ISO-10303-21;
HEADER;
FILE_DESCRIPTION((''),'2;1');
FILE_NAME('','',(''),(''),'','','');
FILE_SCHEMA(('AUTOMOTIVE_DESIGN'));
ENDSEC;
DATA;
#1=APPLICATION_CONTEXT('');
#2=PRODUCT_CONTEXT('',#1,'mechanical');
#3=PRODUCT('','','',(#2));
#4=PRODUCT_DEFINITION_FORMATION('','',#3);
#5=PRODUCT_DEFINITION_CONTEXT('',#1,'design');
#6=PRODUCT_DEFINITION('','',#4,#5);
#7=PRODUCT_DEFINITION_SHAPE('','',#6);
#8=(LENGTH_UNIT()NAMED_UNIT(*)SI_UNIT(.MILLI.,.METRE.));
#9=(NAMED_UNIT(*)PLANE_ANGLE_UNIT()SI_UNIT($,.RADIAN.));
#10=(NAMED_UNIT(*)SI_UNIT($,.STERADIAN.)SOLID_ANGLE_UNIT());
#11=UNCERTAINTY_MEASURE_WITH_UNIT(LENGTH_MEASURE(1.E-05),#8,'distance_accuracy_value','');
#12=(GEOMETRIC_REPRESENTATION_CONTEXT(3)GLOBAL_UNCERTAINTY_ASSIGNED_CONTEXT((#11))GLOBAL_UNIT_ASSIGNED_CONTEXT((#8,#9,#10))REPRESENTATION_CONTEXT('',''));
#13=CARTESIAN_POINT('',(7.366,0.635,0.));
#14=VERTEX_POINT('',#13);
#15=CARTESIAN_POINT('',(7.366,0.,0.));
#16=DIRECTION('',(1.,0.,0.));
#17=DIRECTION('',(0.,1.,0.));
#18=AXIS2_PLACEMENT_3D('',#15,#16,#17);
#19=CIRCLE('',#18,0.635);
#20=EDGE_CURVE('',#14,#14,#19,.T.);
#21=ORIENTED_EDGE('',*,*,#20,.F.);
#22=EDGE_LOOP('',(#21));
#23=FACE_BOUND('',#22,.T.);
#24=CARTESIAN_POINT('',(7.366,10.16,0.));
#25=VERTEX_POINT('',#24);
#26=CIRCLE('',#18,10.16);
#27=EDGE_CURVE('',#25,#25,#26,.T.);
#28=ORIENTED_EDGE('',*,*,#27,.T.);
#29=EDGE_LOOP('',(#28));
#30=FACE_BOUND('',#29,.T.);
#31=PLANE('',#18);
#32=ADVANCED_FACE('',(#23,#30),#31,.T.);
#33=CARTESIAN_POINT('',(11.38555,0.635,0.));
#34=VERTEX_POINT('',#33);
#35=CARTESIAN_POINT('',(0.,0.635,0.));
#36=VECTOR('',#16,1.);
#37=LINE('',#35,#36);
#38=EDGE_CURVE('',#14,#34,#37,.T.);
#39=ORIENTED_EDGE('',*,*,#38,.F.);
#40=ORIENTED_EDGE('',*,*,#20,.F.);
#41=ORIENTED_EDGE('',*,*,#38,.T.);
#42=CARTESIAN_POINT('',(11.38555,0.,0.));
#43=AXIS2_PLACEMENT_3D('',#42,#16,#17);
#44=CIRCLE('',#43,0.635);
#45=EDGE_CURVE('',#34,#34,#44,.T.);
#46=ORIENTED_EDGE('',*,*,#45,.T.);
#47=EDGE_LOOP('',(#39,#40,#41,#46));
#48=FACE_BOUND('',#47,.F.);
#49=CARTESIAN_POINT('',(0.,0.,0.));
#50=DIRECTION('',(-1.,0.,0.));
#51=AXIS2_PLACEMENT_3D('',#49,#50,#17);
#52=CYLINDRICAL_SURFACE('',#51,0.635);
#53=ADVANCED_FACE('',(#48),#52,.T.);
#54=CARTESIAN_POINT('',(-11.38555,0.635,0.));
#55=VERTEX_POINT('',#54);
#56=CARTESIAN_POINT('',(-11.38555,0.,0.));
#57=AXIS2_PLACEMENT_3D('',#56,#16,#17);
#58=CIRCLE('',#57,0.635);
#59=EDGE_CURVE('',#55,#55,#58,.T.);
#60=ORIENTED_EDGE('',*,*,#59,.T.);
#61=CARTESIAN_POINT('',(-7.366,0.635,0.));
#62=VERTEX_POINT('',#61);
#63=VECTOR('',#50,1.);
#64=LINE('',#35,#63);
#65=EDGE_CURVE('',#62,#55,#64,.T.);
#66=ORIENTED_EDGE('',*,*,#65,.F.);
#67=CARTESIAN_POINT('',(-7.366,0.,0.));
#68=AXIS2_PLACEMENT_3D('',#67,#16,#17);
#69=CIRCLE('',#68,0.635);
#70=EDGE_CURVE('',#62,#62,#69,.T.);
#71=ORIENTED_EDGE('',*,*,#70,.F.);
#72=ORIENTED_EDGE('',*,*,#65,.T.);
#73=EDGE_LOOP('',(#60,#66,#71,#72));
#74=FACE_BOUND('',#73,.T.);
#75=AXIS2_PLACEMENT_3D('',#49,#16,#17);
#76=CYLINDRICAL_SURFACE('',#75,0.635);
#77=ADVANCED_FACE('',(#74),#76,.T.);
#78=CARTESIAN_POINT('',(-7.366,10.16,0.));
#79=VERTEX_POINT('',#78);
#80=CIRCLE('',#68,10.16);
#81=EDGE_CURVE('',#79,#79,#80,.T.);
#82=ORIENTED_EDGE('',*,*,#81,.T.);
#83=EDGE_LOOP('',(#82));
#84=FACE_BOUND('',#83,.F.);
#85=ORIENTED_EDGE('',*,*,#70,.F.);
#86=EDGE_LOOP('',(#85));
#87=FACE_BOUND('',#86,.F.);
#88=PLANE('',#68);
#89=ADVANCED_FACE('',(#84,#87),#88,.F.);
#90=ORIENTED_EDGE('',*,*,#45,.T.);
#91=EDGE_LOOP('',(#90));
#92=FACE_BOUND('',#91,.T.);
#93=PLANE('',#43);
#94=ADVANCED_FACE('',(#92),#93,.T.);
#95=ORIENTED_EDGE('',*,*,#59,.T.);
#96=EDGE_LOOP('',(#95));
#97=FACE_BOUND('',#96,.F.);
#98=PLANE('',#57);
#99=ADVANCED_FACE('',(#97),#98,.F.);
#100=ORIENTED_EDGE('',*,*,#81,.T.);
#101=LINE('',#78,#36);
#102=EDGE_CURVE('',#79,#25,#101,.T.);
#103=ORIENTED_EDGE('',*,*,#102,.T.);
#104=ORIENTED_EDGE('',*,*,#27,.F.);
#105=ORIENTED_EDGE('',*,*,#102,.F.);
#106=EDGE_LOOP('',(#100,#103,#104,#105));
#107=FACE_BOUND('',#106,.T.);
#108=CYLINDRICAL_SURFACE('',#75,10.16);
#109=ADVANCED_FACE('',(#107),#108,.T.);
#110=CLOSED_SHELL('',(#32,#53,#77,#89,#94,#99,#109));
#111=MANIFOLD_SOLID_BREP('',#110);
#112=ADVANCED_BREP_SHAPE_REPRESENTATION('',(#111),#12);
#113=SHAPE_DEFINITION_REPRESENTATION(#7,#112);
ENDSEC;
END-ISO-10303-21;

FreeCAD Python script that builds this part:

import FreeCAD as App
import Part
import Sketcher
from FreeCAD import Vector
Q = App.Units.Quantity

doc = App.newDocument("Part")
params = doc.addObject("Spreadsheet::Sheet", "Params")
for row, (alias, value) in enumerate([
    ("sketch1_diameter", "0.8 in"),
    ("sketch1_diameter2", "0.05 in"),
    ("pad1_length", "0.29 in"),
    ("pad1_length2", "0.29 in"),
    ("sketch2_diameter", "0.05 in"),
    ("pad2_length", "11.38555 mm"),
    ("pad2_length2", "11.38555 mm"),
], start=1):
    params.set(f"A{row}", alias)
    params.set(f"B{row}", "=" + value)
    params.setAlias(f"B{row}", alias)

body = doc.addObject("PartDesign::Body", "Body")

sketch1 = body.newObject("Sketcher::SketchObject", "Sketch")
sketch1.AttachmentSupport = (doc.getObject("YZ_Plane"), [""])
sketch1.MapMode = "FlatFace"
sketch1.addGeometry(Part.Circle(Vector(0, 0, 0), Vector(0, 0, 1), 10.2), False)
sketch1.addGeometry(Part.Circle(Vector(0, 0, 0), Vector(0, 0, 1), 0.6), False)
sketch1.addConstraint(Sketcher.Constraint("Coincident", 0, 3, -1, 1))
sketch1.addConstraint(Sketcher.Constraint("Coincident", 1, 3, -1, 1))
sketch1.addConstraint(Sketcher.Constraint("Diameter", 0, Q("0.8 in")))
sketch1.addConstraint(Sketcher.Constraint("Diameter", 1, Q("0.05 in")))
sketch1.setExpression("Constraints[2]", "Params.sketch1_diameter")
sketch1.setExpression("Constraints[3]", "Params.sketch1_diameter2")
pad1 = body.newObject("PartDesign::Pad", "Pad")
pad1.Profile = sketch1
pad1.Type = "TwoLengths"
pad1.setExpression("Length", "Params.pad1_length")
pad1.setExpression("Length2", "Params.pad1_length2")

sketch2 = body.newObject("Sketcher::SketchObject", "Sketch001")
sketch2.AttachmentSupport = (doc.getObject("YZ_Plane"), [""])
sketch2.MapMode = "FlatFace"
sketch2.addGeometry(Part.Circle(Vector(0, 0, 0), Vector(0, 0, 1), 0.6), False)
sketch2.addConstraint(Sketcher.Constraint("Coincident", 0, 3, -1, 1))
sketch2.addConstraint(Sketcher.Constraint("Diameter", 0, Q("0.05 in")))
sketch2.setExpression("Constraints[1]", "Params.sketch2_diameter")
pad2 = body.newObject("PartDesign::Pad", "Pad001")
pad2.Profile = sketch2
pad2.Type = "TwoLengths"
pad2.setExpression("Length", "Params.pad2_length")
pad2.setExpression("Length2", "Params.pad2_length2")

doc.recompute()
